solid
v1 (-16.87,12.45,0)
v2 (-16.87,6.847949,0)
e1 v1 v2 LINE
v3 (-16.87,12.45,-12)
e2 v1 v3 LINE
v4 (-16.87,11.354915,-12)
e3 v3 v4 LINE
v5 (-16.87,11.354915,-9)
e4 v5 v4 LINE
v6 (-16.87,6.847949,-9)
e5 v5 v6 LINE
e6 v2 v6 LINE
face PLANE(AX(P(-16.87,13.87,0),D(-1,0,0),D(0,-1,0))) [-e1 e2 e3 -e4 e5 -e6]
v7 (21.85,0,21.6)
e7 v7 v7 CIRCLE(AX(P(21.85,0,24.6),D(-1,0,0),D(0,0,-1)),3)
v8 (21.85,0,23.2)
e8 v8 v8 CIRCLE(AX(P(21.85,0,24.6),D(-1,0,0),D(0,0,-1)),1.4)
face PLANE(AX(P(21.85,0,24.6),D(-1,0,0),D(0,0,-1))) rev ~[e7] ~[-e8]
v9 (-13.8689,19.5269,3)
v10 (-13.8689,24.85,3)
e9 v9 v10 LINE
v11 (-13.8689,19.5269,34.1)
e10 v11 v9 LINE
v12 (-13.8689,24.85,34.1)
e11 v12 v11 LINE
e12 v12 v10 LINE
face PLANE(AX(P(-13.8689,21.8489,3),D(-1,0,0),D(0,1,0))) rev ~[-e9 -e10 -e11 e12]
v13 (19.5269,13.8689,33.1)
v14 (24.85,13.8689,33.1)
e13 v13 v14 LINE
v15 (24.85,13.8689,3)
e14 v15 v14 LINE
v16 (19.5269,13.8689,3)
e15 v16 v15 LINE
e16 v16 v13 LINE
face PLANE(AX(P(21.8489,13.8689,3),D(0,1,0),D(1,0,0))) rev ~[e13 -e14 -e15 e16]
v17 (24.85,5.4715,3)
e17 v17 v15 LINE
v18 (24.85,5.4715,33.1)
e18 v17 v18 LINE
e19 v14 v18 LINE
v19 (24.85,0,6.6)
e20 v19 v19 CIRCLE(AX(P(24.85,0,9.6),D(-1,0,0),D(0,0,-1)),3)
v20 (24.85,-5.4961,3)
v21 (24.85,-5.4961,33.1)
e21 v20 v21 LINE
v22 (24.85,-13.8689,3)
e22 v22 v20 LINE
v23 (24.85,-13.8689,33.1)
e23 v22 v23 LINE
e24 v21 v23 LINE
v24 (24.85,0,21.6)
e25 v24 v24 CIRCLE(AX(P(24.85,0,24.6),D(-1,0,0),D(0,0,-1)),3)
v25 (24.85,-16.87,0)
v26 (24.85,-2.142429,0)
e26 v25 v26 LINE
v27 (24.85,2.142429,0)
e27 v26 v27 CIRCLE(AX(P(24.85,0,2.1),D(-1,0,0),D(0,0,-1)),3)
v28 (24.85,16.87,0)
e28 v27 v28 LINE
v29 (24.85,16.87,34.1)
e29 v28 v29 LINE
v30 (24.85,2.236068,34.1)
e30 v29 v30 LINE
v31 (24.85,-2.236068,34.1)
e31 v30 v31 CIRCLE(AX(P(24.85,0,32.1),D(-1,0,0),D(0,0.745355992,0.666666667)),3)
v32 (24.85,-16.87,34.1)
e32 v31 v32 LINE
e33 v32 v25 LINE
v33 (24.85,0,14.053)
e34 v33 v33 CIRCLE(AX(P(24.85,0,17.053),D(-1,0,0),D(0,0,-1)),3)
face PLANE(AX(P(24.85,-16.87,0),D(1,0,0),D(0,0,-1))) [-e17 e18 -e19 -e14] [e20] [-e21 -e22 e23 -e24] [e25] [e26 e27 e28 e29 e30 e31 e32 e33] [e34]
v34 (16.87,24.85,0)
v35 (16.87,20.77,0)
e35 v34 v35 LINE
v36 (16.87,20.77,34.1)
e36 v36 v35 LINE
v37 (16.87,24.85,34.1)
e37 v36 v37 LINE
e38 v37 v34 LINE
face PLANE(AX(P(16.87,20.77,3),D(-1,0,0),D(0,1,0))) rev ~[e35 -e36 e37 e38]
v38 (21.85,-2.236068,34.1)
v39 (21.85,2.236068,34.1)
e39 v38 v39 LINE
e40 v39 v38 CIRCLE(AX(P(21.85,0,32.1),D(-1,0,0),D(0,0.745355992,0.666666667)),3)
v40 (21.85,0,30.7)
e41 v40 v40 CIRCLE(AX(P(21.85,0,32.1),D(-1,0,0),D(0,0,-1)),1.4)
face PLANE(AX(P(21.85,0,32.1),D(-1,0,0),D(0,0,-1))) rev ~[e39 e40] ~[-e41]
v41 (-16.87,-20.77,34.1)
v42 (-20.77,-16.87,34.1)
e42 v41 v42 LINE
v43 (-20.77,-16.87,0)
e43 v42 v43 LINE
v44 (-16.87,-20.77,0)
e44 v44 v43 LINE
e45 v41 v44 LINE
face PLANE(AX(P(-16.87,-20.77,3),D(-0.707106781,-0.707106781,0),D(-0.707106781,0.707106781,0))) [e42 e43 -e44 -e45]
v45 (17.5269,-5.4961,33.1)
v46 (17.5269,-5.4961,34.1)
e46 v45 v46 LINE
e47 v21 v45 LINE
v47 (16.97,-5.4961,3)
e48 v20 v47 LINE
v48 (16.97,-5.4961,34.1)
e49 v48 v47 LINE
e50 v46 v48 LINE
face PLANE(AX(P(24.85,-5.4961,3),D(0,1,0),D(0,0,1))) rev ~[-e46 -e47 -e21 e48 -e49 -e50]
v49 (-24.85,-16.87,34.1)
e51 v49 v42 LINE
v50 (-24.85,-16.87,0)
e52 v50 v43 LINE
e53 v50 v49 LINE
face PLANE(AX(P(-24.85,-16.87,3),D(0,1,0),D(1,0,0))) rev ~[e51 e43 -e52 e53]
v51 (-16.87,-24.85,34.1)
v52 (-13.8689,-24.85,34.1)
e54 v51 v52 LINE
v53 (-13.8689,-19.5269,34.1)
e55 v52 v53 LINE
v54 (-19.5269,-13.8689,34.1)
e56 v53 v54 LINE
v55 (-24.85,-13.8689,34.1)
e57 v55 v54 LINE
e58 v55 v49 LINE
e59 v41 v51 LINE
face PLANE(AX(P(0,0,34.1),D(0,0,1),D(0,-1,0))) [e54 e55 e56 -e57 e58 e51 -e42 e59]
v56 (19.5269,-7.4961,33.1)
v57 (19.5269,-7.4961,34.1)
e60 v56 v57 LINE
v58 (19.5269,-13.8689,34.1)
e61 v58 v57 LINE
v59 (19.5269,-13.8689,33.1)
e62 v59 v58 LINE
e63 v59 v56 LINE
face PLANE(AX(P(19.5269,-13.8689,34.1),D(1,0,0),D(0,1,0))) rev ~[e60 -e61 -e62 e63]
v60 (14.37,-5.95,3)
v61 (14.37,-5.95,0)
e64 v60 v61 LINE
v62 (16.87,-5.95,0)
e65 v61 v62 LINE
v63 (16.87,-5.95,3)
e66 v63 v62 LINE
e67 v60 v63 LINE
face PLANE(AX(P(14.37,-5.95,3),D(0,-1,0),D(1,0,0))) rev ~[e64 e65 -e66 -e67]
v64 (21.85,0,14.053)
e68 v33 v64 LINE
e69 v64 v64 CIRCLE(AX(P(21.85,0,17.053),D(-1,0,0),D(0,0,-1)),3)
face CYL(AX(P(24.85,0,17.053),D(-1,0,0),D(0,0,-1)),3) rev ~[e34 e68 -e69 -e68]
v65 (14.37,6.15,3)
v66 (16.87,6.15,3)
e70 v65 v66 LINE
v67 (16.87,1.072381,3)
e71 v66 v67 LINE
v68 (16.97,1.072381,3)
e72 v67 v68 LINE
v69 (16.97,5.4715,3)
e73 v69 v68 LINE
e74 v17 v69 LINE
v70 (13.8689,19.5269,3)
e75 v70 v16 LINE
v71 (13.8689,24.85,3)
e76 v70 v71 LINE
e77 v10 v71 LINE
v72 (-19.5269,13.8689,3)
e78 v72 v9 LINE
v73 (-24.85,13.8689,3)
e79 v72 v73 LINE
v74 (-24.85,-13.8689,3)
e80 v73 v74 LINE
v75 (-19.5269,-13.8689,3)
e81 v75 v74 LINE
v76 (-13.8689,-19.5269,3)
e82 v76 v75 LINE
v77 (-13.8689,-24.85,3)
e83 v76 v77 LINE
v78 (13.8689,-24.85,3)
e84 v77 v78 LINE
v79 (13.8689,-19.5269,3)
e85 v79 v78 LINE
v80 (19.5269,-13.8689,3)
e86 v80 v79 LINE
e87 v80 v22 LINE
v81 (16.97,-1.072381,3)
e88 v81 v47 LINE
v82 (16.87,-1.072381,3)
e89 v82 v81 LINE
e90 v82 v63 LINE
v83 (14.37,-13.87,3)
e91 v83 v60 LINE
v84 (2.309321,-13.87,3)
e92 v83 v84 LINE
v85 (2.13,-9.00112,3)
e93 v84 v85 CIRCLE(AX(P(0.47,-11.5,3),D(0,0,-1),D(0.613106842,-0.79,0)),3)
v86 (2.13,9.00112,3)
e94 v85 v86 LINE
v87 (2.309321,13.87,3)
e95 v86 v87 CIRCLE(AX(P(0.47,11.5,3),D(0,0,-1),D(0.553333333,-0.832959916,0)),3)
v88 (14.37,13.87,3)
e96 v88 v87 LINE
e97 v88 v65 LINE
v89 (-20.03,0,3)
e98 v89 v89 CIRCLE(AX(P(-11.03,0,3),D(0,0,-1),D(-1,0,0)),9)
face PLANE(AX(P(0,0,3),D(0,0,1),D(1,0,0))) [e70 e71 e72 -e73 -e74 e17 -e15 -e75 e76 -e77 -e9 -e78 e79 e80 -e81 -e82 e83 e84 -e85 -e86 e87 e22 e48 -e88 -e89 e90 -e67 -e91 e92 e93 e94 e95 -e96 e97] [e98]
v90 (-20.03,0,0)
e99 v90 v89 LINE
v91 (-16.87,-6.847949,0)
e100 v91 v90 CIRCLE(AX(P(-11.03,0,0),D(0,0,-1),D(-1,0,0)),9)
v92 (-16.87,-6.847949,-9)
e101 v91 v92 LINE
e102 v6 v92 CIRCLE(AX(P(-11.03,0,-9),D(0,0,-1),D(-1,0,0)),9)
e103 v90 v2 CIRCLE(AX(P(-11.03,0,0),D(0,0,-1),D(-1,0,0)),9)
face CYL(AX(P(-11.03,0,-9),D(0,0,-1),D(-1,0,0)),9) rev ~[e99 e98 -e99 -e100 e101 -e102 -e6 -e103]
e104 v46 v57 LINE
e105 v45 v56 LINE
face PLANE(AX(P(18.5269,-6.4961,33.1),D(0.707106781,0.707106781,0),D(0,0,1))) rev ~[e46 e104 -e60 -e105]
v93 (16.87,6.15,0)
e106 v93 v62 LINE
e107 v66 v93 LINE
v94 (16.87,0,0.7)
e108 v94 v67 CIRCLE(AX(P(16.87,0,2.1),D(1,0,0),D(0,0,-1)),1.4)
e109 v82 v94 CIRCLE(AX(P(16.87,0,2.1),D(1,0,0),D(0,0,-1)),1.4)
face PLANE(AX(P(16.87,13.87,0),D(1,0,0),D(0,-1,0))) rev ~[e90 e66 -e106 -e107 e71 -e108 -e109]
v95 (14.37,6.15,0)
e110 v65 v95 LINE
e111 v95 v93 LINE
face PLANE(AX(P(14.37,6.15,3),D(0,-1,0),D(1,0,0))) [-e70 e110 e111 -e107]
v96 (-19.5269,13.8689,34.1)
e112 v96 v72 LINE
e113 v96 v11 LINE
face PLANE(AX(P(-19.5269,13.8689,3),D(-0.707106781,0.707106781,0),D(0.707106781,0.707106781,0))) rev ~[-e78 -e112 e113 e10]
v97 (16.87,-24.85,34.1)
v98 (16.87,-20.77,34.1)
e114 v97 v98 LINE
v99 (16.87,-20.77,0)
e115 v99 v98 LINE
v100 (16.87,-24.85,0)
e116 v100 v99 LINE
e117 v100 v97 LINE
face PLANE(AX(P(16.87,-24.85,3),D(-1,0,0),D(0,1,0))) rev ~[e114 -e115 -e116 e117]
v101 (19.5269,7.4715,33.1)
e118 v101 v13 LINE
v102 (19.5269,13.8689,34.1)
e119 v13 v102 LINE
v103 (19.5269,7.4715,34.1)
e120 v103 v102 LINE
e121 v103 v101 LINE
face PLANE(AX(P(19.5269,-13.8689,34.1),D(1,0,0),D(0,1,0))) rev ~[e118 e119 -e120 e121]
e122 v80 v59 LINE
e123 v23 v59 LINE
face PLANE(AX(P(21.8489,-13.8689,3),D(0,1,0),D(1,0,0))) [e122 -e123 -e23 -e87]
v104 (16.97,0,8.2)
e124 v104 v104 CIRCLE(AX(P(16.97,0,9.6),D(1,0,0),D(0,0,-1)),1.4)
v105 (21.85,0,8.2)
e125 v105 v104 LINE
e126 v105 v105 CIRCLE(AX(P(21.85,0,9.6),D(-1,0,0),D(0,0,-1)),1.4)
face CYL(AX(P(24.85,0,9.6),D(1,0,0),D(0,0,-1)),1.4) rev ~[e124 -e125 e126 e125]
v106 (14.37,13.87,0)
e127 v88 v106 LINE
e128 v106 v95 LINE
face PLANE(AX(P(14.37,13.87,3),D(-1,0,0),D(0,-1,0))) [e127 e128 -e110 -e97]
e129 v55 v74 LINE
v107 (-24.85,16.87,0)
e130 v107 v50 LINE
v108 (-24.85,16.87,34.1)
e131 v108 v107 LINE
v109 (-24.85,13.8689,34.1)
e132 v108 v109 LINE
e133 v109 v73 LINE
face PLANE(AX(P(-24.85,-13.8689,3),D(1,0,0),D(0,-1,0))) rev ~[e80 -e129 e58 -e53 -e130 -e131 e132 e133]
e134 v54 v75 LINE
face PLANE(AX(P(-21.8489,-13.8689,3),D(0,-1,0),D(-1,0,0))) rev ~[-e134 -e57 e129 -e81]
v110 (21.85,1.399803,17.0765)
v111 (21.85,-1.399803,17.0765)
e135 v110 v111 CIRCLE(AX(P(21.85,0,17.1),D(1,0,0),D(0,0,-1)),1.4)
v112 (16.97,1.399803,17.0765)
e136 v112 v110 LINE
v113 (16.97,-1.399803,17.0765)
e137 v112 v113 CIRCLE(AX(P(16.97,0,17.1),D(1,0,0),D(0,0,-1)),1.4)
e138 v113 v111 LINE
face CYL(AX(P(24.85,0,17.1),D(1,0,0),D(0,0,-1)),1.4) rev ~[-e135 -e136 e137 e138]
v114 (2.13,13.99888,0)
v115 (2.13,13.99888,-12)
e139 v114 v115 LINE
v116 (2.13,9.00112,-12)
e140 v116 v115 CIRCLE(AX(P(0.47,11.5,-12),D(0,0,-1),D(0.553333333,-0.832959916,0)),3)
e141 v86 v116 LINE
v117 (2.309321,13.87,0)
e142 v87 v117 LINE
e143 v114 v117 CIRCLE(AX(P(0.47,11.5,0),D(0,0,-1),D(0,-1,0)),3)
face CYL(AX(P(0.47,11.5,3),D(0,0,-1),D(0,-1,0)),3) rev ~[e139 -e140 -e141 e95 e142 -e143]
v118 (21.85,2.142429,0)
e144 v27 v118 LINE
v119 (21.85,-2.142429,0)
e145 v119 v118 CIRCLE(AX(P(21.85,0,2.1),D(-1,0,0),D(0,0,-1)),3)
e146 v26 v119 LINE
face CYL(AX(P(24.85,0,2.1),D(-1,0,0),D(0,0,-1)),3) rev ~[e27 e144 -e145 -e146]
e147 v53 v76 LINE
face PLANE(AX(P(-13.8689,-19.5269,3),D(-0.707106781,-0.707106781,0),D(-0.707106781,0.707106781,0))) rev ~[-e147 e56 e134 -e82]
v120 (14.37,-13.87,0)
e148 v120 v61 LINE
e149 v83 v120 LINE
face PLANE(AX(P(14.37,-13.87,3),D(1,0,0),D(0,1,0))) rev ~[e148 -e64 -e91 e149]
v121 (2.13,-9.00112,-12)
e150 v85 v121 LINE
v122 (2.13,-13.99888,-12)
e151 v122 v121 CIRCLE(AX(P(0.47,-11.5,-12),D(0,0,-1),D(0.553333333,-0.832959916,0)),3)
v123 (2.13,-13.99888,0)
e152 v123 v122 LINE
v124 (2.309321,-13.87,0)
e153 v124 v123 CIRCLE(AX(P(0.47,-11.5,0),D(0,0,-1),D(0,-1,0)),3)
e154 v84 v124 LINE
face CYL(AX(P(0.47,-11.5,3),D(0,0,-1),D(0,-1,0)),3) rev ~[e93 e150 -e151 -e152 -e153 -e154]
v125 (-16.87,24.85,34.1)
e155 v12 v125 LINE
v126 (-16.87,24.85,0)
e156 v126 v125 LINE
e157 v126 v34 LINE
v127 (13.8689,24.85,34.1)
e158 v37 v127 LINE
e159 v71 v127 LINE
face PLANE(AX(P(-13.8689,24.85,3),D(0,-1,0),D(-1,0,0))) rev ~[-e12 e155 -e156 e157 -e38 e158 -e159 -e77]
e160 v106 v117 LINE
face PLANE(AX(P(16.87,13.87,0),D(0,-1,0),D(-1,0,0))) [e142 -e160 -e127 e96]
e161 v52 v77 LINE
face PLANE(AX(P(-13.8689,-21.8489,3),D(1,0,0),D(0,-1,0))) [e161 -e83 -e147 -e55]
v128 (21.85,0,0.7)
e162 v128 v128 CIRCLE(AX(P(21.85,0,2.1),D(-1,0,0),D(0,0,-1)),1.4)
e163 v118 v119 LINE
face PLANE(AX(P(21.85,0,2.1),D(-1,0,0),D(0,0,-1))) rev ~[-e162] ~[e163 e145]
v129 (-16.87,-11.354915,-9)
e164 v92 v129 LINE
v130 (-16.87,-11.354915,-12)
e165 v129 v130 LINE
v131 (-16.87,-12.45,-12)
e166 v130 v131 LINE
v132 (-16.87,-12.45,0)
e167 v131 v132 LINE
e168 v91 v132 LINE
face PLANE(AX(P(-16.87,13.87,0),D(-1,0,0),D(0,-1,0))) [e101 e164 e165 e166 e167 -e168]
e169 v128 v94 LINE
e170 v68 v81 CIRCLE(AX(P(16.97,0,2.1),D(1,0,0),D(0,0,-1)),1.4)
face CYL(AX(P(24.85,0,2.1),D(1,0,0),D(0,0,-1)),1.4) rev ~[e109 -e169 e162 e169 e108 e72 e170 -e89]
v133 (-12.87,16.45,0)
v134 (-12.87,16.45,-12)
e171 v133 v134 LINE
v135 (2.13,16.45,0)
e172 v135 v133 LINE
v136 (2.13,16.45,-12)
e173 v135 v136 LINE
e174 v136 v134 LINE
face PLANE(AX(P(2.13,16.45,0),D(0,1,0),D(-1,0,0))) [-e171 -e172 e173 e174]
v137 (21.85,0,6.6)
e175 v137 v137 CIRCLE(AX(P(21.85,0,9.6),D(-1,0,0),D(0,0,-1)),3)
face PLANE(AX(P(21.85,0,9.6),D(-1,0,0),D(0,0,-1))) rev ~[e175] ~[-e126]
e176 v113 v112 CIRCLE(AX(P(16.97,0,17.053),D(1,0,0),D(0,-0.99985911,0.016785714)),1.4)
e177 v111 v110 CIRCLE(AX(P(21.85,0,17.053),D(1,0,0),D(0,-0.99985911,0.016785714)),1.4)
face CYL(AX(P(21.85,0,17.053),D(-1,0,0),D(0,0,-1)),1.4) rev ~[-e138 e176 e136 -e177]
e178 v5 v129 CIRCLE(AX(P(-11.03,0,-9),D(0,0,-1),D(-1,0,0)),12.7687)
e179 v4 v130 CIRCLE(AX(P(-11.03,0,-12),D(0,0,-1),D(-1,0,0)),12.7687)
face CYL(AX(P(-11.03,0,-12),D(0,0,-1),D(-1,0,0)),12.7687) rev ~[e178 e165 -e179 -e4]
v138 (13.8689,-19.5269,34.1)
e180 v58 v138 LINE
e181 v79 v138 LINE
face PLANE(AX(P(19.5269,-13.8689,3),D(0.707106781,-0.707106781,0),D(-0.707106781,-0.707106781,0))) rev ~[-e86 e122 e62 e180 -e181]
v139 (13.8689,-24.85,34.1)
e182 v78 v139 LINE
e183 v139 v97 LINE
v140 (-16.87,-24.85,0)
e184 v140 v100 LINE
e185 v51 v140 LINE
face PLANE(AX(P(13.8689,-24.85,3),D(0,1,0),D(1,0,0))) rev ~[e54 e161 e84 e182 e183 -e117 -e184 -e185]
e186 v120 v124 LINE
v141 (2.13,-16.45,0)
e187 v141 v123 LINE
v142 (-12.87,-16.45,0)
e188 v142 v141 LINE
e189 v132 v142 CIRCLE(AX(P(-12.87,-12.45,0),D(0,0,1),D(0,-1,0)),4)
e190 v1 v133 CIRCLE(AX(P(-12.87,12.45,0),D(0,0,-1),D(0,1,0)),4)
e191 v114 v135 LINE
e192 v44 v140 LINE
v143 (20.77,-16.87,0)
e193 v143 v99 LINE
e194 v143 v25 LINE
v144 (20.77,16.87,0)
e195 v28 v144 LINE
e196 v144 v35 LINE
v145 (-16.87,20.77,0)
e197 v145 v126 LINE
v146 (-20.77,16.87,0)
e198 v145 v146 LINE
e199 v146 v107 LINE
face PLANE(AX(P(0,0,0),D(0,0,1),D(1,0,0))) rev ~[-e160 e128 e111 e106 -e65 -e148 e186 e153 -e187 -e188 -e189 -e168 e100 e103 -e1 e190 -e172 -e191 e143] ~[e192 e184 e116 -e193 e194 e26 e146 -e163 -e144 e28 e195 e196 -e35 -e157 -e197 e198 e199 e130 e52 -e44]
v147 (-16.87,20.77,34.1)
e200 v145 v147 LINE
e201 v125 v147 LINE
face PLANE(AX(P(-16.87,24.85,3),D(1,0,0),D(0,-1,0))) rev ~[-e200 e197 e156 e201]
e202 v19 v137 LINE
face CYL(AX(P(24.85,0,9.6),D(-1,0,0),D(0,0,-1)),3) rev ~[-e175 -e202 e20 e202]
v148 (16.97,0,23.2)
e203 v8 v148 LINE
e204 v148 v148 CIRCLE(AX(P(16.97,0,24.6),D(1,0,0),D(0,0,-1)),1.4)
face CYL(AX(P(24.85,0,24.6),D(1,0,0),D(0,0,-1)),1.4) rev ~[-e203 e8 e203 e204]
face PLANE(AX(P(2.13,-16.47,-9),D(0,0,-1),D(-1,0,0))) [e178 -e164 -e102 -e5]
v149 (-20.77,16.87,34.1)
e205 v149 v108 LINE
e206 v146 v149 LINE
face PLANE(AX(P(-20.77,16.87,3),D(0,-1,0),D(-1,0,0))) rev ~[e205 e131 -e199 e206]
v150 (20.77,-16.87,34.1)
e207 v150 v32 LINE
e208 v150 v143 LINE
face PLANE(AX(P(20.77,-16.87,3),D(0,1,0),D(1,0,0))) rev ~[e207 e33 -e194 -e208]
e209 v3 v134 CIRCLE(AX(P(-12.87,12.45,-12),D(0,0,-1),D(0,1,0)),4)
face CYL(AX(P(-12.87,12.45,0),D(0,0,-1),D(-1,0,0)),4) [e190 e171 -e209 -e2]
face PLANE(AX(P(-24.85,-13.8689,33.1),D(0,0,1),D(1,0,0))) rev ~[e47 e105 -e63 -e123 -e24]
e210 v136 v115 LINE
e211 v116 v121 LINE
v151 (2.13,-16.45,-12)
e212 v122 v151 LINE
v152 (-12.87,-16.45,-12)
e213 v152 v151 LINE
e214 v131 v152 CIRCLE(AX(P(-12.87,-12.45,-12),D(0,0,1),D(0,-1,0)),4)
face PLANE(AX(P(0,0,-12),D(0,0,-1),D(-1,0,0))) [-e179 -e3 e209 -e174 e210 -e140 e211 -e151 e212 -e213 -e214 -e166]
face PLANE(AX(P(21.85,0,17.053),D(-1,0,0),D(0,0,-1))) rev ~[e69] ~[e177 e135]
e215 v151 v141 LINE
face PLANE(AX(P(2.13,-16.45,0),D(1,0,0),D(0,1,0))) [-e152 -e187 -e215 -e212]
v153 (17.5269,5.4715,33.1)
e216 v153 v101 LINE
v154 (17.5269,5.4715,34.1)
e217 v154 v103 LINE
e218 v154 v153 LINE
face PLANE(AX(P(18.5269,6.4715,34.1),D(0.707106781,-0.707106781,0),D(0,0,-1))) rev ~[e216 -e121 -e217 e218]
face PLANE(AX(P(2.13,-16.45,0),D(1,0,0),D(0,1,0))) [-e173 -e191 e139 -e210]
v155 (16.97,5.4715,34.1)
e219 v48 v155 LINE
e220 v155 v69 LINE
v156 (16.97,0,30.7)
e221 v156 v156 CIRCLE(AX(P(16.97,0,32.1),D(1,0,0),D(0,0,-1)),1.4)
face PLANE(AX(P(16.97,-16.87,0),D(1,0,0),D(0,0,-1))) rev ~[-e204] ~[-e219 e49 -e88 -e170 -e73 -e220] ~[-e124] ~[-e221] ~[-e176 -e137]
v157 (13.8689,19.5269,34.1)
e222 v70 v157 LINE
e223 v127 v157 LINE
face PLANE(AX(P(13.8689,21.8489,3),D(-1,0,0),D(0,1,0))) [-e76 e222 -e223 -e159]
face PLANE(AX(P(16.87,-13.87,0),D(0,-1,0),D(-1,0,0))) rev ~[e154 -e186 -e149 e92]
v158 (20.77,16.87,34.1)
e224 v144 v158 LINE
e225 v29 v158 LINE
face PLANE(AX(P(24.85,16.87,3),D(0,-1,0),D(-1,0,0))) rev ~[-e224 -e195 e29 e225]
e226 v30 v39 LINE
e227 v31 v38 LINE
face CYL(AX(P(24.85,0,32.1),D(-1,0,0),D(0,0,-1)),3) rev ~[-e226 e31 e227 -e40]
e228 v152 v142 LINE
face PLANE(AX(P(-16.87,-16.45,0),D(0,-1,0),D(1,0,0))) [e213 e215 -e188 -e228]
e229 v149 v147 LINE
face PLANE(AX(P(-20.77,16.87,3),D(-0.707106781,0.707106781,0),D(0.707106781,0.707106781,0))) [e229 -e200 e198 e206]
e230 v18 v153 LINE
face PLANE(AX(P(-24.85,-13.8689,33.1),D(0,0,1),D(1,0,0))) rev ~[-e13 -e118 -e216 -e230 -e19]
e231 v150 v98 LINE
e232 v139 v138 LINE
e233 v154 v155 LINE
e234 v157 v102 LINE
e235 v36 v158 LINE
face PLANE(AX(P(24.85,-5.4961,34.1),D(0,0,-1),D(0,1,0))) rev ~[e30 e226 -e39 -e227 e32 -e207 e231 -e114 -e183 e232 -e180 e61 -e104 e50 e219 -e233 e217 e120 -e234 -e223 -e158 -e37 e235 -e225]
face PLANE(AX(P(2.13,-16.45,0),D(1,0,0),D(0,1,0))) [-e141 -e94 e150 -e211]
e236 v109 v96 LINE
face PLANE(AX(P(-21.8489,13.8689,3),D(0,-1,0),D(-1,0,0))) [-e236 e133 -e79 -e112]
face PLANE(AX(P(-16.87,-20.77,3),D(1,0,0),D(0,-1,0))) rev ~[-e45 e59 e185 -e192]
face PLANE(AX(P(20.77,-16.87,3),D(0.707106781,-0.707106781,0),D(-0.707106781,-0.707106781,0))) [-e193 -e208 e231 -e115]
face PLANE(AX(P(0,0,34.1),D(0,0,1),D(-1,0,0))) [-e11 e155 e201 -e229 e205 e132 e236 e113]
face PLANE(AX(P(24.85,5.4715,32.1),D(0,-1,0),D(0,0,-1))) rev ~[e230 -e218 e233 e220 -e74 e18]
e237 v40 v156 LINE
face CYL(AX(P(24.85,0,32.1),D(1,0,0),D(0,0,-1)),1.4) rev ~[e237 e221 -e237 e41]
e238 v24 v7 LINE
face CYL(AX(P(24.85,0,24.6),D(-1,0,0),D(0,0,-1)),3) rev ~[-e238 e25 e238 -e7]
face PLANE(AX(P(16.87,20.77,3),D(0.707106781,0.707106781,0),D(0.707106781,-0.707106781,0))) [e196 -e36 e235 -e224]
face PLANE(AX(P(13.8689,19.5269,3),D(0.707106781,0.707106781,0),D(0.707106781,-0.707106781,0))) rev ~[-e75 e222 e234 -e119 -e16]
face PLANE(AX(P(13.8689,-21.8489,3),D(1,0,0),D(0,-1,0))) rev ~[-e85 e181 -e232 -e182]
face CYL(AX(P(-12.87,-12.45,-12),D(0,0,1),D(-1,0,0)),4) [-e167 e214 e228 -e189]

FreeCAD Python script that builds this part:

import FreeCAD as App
import Part
import Sketcher
Q = App.Units.Quantity


def edges_at(feature, points):
    """Names of the edges that pass closest to the given points."""
    edges = feature.Shape.Edges
    near = lambda p: min(range(len(edges)), key=lambda i: edges[i].distToShape(Part.Vertex(*p))[0])
    return sorted({f"Edge{near(p) + 1}" for p in points})

doc = App.newDocument("Part")
body = doc.addObject("PartDesign::Body", "Body")

sketch1 = body.newObject("Sketcher::SketchObject", "Sketch")
sketch1.AttachmentSupport = (doc.getObject("XY_Plane"), [""])
sketch1.MapMode = "FlatFace"
sketch1.addGeometry(Part.LineSegment(App.Vector(25, -17, 0), App.Vector(25, 17, 0)), False)
sketch1.addGeometry(Part.LineSegment(App.Vector(25, 17, 0), App.Vector(17, 17, 0)), False)
sketch1.addGeometry(Part.LineSegment(App.Vector(17, 17, 0), App.Vector(17, 25, 0)), False)
sketch1.addGeometry(Part.LineSegment(App.Vector(17, 25, 0), App.Vector(-17, 25, 0)), False)
sketch1.addGeometry(Part.LineSegment(App.Vector(-17, 25, 0), App.Vector(-17, 17, 0)), False)
sketch1.addGeometry(Part.LineSegment(App.Vector(-17, 17, 0), App.Vector(-25, 17, 0)), False)
sketch1.addGeometry(Part.LineSegment(App.Vector(-25, 17, 0), App.Vector(-25, -17, 0)), False)
sketch1.addGeometry(Part.LineSegment(App.Vector(-25, -17, 0), App.Vector(-17, -17, 0)), False)
sketch1.addGeometry(Part.LineSegment(App.Vector(-17, -17, 0), App.Vector(-17, -25, 0)), False)
sketch1.addGeometry(Part.LineSegment(App.Vector(-17, -25, 0), App.Vector(17, -25, 0)), False)
sketch1.addGeometry(Part.LineSegment(App.Vector(17, -25, 0), App.Vector(17, -17, 0)), False)
sketch1.addGeometry(Part.LineSegment(App.Vector(17, -17, 0), App.Vector(25, -17, 0)), False)
sketch1.addGeometry(Part.LineSegment(App.Vector(17, 14, 0), App.Vector(17, -14, 0)), False)
sketch1.addGeometry(Part.LineSegment(App.Vector(17, -14, 0), App.Vector(-17, -14, 0)), False)
sketch1.addGeometry(Part.LineSegment(App.Vector(-17, -14, 0), App.Vector(-17, 14, 0)), False)
sketch1.addGeometry(Part.LineSegment(App.Vector(-17, 14, 0), App.Vector(17, 14, 0)), False)
sketch1.addConstraint(Sketcher.Constraint("Coincident", 0, 2, 1, 1))
sketch1.addConstraint(Sketcher.Constraint("Coincident", 1, 2, 2, 1))
sketch1.addConstraint(Sketcher.Constraint("Coincident", 2, 2, 3, 1))
sketch1.addConstraint(Sketcher.Constraint("Coincident", 3, 2, 4, 1))
sketch1.addConstraint(Sketcher.Constraint("Coincident", 4, 2, 5, 1))
sketch1.addConstraint(Sketcher.Constraint("Coincident", 5, 2, 6, 1))
sketch1.addConstraint(Sketcher.Constraint("Coincident", 6, 2, 7, 1))
sketch1.addConstraint(Sketcher.Constraint("Coincident", 7, 2, 8, 1))
sketch1.addConstraint(Sketcher.Constraint("Coincident", 8, 2, 9, 1))
sketch1.addConstraint(Sketcher.Constraint("Coincident", 9, 2, 10, 1))
sketch1.addConstraint(Sketcher.Constraint("Coincident", 10, 2, 11, 1))
sketch1.addConstraint(Sketcher.Constraint("Coincident", 11, 2, 0, 1))
sketch1.addConstraint(Sketcher.Constraint("Coincident", 12, 2, 13, 1))
sketch1.addConstraint(Sketcher.Constraint("Coincident", 13, 2, 14, 1))
sketch1.addConstraint(Sketcher.Constraint("Coincident", 14, 2, 15, 1))
sketch1.addConstraint(Sketcher.Constraint("Coincident", 15, 2, 12, 1))
sketch1.addConstraint(Sketcher.Constraint("Vertical", 0))
sketch1.addConstraint(Sketcher.Constraint("Horizontal", 1))
sketch1.addConstraint(Sketcher.Constraint("Vertical", 2))
sketch1.addConstraint(Sketcher.Constraint("Horizontal", 3))
sketch1.addConstraint(Sketcher.Constraint("Vertical", 4))
sketch1.addConstraint(Sketcher.Constraint("Horizontal", 5))
sketch1.addConstraint(Sketcher.Constraint("Vertical", 6))
sketch1.addConstraint(Sketcher.Constraint("Horizontal", 7))
sketch1.addConstraint(Sketcher.Constraint("Vertical", 8))
sketch1.addConstraint(Sketcher.Constraint("Horizontal", 9))
sketch1.addConstraint(Sketcher.Constraint("Vertical", 10))
sketch1.addConstraint(Sketcher.Constraint("Horizontal", 11))
sketch1.addConstraint(Sketcher.Constraint("Vertical", 12))
sketch1.addConstraint(Sketcher.Constraint("Horizontal", 13))
sketch1.addConstraint(Sketcher.Constraint("Vertical", 14))
sketch1.addConstraint(Sketcher.Constraint("Horizontal", 15))
sketch1.addConstraint(Sketcher.Constraint("Symmetric", 0, 2, 6, 2, -1, 1))
sketch1.addConstraint(Sketcher.Constraint("Symmetric", 2, 2, 8, 2, -1, 1))
sketch1.addConstraint(Sketcher.Constraint("Symmetric", 4, 2, 10, 2, -1, 1))
sketch1.addConstraint(Sketcher.Constraint("Symmetric", 12, 2, 14, 2, -1, 1))
sketch1.addConstraint(Sketcher.Constraint("Symmetric", 1, 2, 4, 2, -2))
sketch1.addConstraint(Sketcher.Constraint("Vertical", 10, 2, 12, 2))
sketch1.addConstraint(Sketcher.Constraint("Equal", 15, 0))
sketch1.addConstraint(Sketcher.Constraint("Equal", 11, 2))
sketch1.addConstraint(Sketcher.Constraint("DistanceY", 10, 2, 12, 2, Q("3 mm")))
sketch1.addConstraint(Sketcher.Constraint("DistanceX", 1, 2, 1, 1, Q("7.98 mm")))
sketch1.addConstraint(Sketcher.Constraint("DistanceX", 3, 2, 3, 1, Q("33.74 mm")))
pad1 = body.newObject("PartDesign::Pad", "Pad")
pad1.Profile = sketch1
pad1.Length = 3
doc.recompute()

chamfer = body.newObject("PartDesign::Chamfer", "Chamfer")
chamfer.Base = (pad1, edges_at(pad1, [
    (16.87, -16.87, 1.5),
    (-16.87, -16.87, 1.5),
    (-16.87, 16.87, 1.5),
    (16.87, 16.87, 1.5),
]))
chamfer.Size = 3.9

sketch2 = body.newObject("Sketcher::SketchObject", "Sketch001")
sketch2.AttachmentSupport = (doc.getObject("XY_Plane"), [""])
sketch2.MapMode = "FlatFace"
sketch2.AttachmentOffset = App.Placement(App.Vector(0, 0, 3), App.Rotation())
sketch2.addGeometry(Part.LineSegment(App.Vector(13.9, -19.5, 0), App.Vector(13.9, -24.9, 0)), False)
sketch2.addGeometry(Part.LineSegment(App.Vector(13.9, -24.9, 0), App.Vector(16.9, -24.9, 0)), False)
sketch2.addGeometry(Part.LineSegment(App.Vector(16.9, -24.9, 0), App.Vector(16.9, -20.8, 0)), False)
sketch2.addGeometry(Part.LineSegment(App.Vector(16.9, -20.8, 0), App.Vector(20.8, -16.9, 0)), False)
sketch2.addGeometry(Part.LineSegment(App.Vector(20.8, -16.9, 0), App.Vector(24.9, -16.9, 0)), False)
sketch2.addGeometry(Part.LineSegment(App.Vector(24.9, -16.9, 0), App.Vector(24.9, -13.9, 0)), False)
sketch2.addGeometry(Part.LineSegment(App.Vector(24.9, -13.9, 0), App.Vector(19.5, -13.9, 0)), False)
sketch2.addGeometry(Part.LineSegment(App.Vector(19.5, -13.9, 0), App.Vector(13.9, -19.5, 0)), False)
sketch2.addConstraint(Sketcher.Constraint("Coincident", 0, 2, 1, 1))
sketch2.addConstraint(Sketcher.Constraint("Coincident", 1, 2, 2, 1))
sketch2.addConstraint(Sketcher.Constraint("Coincident", 2, 2, 3, 1))
sketch2.addConstraint(Sketcher.Constraint("Coincident", 3, 2, 4, 1))
sketch2.addConstraint(Sketcher.Constraint("Coincident", 4, 2, 5, 1))
sketch2.addConstraint(Sketcher.Constraint("Coincident", 5, 2, 6, 1))
sketch2.addConstraint(Sketcher.Constraint("Coincident", 6, 2, 7, 1))
sketch2.addConstraint(Sketcher.Constraint("Coincident", 7, 2, 0, 1))
sketch2.addConstraint(Sketcher.Constraint("Vertical", 0))
sketch2.addConstraint(Sketcher.Constraint("Horizontal", 1))
sketch2.addConstraint(Sketcher.Constraint("Vertical", 2))
sketch2.addConstraint(Sketcher.Constraint("Horizontal", 4))
sketch2.addConstraint(Sketcher.Constraint("Vertical", 5))
sketch2.addConstraint(Sketcher.Constraint("Horizontal", 6))
sketch2.addConstraint(Sketcher.Constraint("Parallel", 3, 7))
sketch2.addConstraint(Sketcher.Constraint("Equal", 6, 0))
sketch2.addConstraint(Sketcher.Constraint("Equal", 4, 2))
sketch2.addConstraint(Sketcher.Constraint("Equal", 1, 5))
sketch2.addConstraint(Sketcher.Constraint("DistanceX", 1, 1, 1, 2, Q("3.001 mm")))
sketch2.addConstraint(Sketcher.Constraint("DistanceX", 4, 1, 4, 2, Q("4.08 mm")))
sketch2.addConstraint(Sketcher.Constraint("DistanceX", 2, 2, 3, 2, Q("3.9 mm")))
sketch2.addConstraint(Sketcher.Constraint("DistanceX", 6, 2, 6, 1, Q("5.323 mm")))
sketch2.addConstraint(Sketcher.Constraint("DistanceY", 0, 2, -1, 1, Q("24.85 mm")))
sketch2.addConstraint(Sketcher.Constraint("DistanceX", -1, 1, 1, 2, Q("16.87 mm")))
pad2 = body.newObject("PartDesign::Pad", "Pad001")
pad2.Profile = sketch2
pad2.Length = 31.1
doc.recompute()

polarpattern = body.newObject("PartDesign::PolarPattern", "PolarPattern")
polarpattern.Originals = [pad2]
polarpattern.Axis = (doc.getObject("Z_Axis"), [""])
polarpattern.Angle = 360
polarpattern.Occurrences = 4
body.Tip = polarpattern

sketch3 = body.newObject("Sketcher::SketchObject", "Sketch002")
sketch3.AttachmentSupport = (doc.getObject("XY_Plane"), [""])
sketch3.MapMode = "FlatFace"
sketch3.AttachmentOffset = App.Placement(App.Vector(0, 0, 34.1), App.Rotation())
sketch3.addGeometry(Part.LineSegment(App.Vector(-13.9, -24.9, 0), App.Vector(-13.9, -19.5, 0)), False)
sketch3.addGeometry(Part.LineSegment(App.Vector(-13.9, -19.5, 0), App.Vector(-19.5, -13.9, 0)), False)
sketch3.addGeometry(Part.LineSegment(App.Vector(-19.5, -13.9, 0), App.Vector(-24.9, -13.9, 0)), False)
sketch3.addGeometry(Part.LineSegment(App.Vector(-24.9, -13.9, 0), App.Vector(-24.9, -16.9, 0)), False)
sketch3.addGeometry(Part.LineSegment(App.Vector(-24.9, -16.9, 0), App.Vector(-20.8, -16.9, 0)), False)
sketch3.addGeometry(Part.LineSegment(App.Vector(-20.8, -16.9, 0), App.Vector(-16.9, -20.8, 0)), False)
sketch3.addGeometry(Part.LineSegment(App.Vector(-16.9, -20.8, 0), App.Vector(-16.9, -24.9, 0)), False)
sketch3.addGeometry(Part.LineSegment(App.Vector(-16.9, -24.9, 0), App.Vector(-13.9, -24.9, 0)), False)
sketch3.addGeometry(Part.LineSegment(App.Vector(-24.9, 13.9, 0), App.Vector(-19.5, 13.9, 0)), False)
sketch3.addGeometry(Part.LineSegment(App.Vector(-19.5, 13.9, 0), App.Vector(-13.9, 19.5, 0)), False)
sketch3.addGeometry(Part.LineSegment(App.Vector(-13.9, 19.5, 0), App.Vector(-13.9, 24.9, 0)), False)
sketch3.addGeometry(Part.LineSegment(App.Vector(-13.9, 24.9, 0), App.Vector(-16.9, 24.9, 0)), False)
sketch3.addGeometry(Part.LineSegment(App.Vector(-16.9, 24.9, 0), App.Vector(-16.9, 20.8, 0)), False)
sketch3.addGeometry(Part.LineSegment(App.Vector(-16.9, 20.8, 0), App.Vector(-20.8, 16.9, 0)), False)
sketch3.addGeometry(Part.LineSegment(App.Vector(-20.8, 16.9, 0), App.Vector(-24.9, 16.9, 0)), False)
sketch3.addGeometry(Part.LineSegment(App.Vector(-24.9, 16.9, 0), App.Vector(-24.9, 13.9, 0)), False)
sketch3.addGeometry(Part.LineSegment(App.Vector(19.5, -13.9, 0), App.Vector(24.9, -13.9, 0)), False)
sketch3.addGeometry(Part.LineSegment(App.Vector(24.9, -13.9, 0), App.Vector(24.9, 13.9, 0)), False)
sketch3.addGeometry(Part.LineSegment(App.Vector(24.9, 13.9, 0), App.Vector(19.5, 13.9, 0)), False)
sketch3.addGeometry(Part.LineSegment(App.Vector(19.5, 13.9, 0), App.Vector(19.5, -13.9, 0)), False)
sketch3.addConstraint(Sketcher.Constraint("Coincident", 0, 2, 1, 1))
sketch3.addConstraint(Sketcher.Constraint("Coincident", 1, 2, 2, 1))
sketch3.addConstraint(Sketcher.Constraint("Coincident", 2, 2, 3, 1))
sketch3.addConstraint(Sketcher.Constraint("Coincident", 3, 2, 4, 1))
sketch3.addConstraint(Sketcher.Constraint("Coincident", 4, 2, 5, 1))
sketch3.addConstraint(Sketcher.Constraint("Coincident", 5, 2, 6, 1))
sketch3.addConstraint(Sketcher.Constraint("Coincident", 6, 2, 7, 1))
sketch3.addConstraint(Sketcher.Constraint("Coincident", 7, 2, 0, 1))
sketch3.addConstraint(Sketcher.Constraint("Coincident", 8, 2, 9, 1))
sketch3.addConstraint(Sketcher.Constraint("Coincident", 9, 2, 10, 1))
sketch3.addConstraint(Sketcher.Constraint("Coincident", 10, 2, 11, 1))
sketch3.addConstraint(Sketcher.Constraint("Coincident", 11, 2, 12, 1))
sketch3.addConstraint(Sketcher.Constraint("Coincident", 12, 2, 13, 1))
sketch3.addConstraint(Sketcher.Constraint("Coincident", 13, 2, 14, 1))
sketch3.addConstraint(Sketcher.Constraint("Coincident", 14, 2, 15, 1))
sketch3.addConstraint(Sketcher.Constraint("Coincident", 15, 2, 8, 1))
sketch3.addConstraint(Sketcher.Constraint("Coincident", 16, 2, 17, 1))
sketch3.addConstraint(Sketcher.Constraint("Coincident", 17, 2, 18, 1))
sketch3.addConstraint(Sketcher.Constraint("Coincident", 18, 2, 19, 1))
sketch3.addConstraint(Sketcher.Constraint("Coincident", 19, 2, 16, 1))
sketch3.addConstraint(Sketcher.Constraint("Vertical", 0))
sketch3.addConstraint(Sketcher.Constraint("Horizontal", 2))
sketch3.addConstraint(Sketcher.Constraint("Vertical", 3))
sketch3.addConstraint(Sketcher.Constraint("Horizontal", 4))
sketch3.addConstraint(Sketcher.Constraint("Vertical", 6))
sketch3.addConstraint(Sketcher.Constraint("Horizontal", 7))
sketch3.addConstraint(Sketcher.Constraint("Horizontal", 8))
sketch3.addConstraint(Sketcher.Constraint("Vertical", 10))
sketch3.addConstraint(Sketcher.Constraint("Horizontal", 11))
sketch3.addConstraint(Sketcher.Constraint("Vertical", 12))
sketch3.addConstraint(Sketcher.Constraint("Horizontal", 14))
sketch3.addConstraint(Sketcher.Constraint("Vertical", 15))
sketch3.addConstraint(Sketcher.Constraint("Horizontal", 16))
sketch3.addConstraint(Sketcher.Constraint("Vertical", 17))
sketch3.addConstraint(Sketcher.Constraint("Horizontal", 18))
sketch3.addConstraint(Sketcher.Constraint("Vertical", 19))
sketch3.addConstraint(Sketcher.Constraint("Symmetric", 15, 2, 16, 2, -1, 1))
sketch3.addConstraint(Sketcher.Constraint("Symmetric", 2, 2, 17, 2, -1, 1))
sketch3.addConstraint(Sketcher.Constraint("Symmetric", 8, 2, 18, 2, -2))
sketch3.addConstraint(Sketcher.Constraint("Symmetric", 0, 2, 9, 2, -1))
sketch3.addConstraint(Sketcher.Constraint("Symmetric", 6, 2, 11, 2, -1))
sketch3.addConstraint(Sketcher.Constraint("Symmetric", 4, 2, 13, 2, -1))
sketch3.addConstraint(Sketcher.Constraint("Parallel", 1, 5))
sketch3.addConstraint(Sketcher.Constraint("Perpendicular", 5, 9))
sketch3.addConstraint(Sketcher.Constraint("Parallel", 9, 13))
sketch3.addConstraint(Sketcher.Constraint("Vertical", 1, 2, 8, 2))
sketch3.addConstraint(Sketcher.Constraint("Equal", 18, 0))
sketch3.addConstraint(Sketcher.Constraint("Equal", 11, 3))
sketch3.addConstraint(Sketcher.Constraint("DistanceX", 4, 1, 4, 2, Q("4.08 mm")))
sketch3.addConstraint(Sketcher.Constraint("DistanceX", 4, 2, 5, 2, Q("3.9 mm")))
sketch3.addConstraint(Sketcher.Constraint("DistanceX", 2, 2, 2, 1, Q("5.323 mm")))
sketch3.addConstraint(Sketcher.Constraint("DistanceX", 7, 1, 7, 2, Q("3.001 mm")))
sketch3.addConstraint(Sketcher.Constraint("DistanceX", 2, 2, -1, 1, Q("24.85 mm")))
sketch3.addConstraint(Sketcher.Constraint("DistanceY", 3, 2, -1, 1, Q("16.87 mm")))
pad3 = body.newObject("PartDesign::Pad", "Pad002")
pad3.Profile = sketch3
pad3.Length = 1
pad3.Reversed = True

sketch4 = body.newObject("Sketcher::SketchObject", "Sketch003")
sketch4.AttachmentSupport = (doc.getObject("YZ_Plane"), [""])
sketch4.MapMode = "FlatFace"
sketch4.AttachmentOffset = App.Placement(App.Vector(0, 0, 24.85), App.Rotation())
sketch4.addGeometry(Part.LineSegment(App.Vector(-5, 34, 0), App.Vector(-5, 3, 0)), False)
sketch4.addGeometry(Part.LineSegment(App.Vector(-5, 3, 0), App.Vector(5, 3, 0)), False)
sketch4.addGeometry(Part.LineSegment(App.Vector(5, 3, 0), App.Vector(5, 34, 0)), False)
sketch4.addGeometry(Part.LineSegment(App.Vector(5, 34, 0), App.Vector(-5, 34, 0)), False)
sketch4.addConstraint(Sketcher.Constraint("Coincident", 0, 2, 1, 1))
sketch4.addConstraint(Sketcher.Constraint("Coincident", 1, 2, 2, 1))
sketch4.addConstraint(Sketcher.Constraint("Coincident", 2, 2, 3, 1))
sketch4.addConstraint(Sketcher.Constraint("Coincident", 3, 2, 0, 1))
sketch4.addConstraint(Sketcher.Constraint("Vertical", 0))
sketch4.addConstraint(Sketcher.Constraint("Horizontal", 1))
sketch4.addConstraint(Sketcher.Constraint("Vertical", 2))
sketch4.addConstraint(Sketcher.Constraint("Horizontal", 3))
sketch4.addConstraint(Sketcher.Constraint("DistanceY", 0, 2, 0, 1, Q("31.1 mm")))
sketch4.addConstraint(Sketcher.Constraint("DistanceY", -1, 1, 0, 2, Q("3 mm")))
sketch4.addConstraint(Sketcher.Constraint("DistanceX", 1, 1, 1, 2, Q("10.9676 mm")))
sketch4.addConstraint(Sketcher.Constraint("DistanceX", 0, 2, -1, 1, Q("5.496 mm")))
pad4 = body.newObject("PartDesign::Pad", "Pad003")
pad4.Profile = sketch4
pad4.Length = 7.88
pad4.Reversed = True

sketch5 = body.newObject("Sketcher::SketchObject", "Sketch004")
sketch5.AttachmentSupport = (doc.getObject("YZ_Plane"), [""])
sketch5.MapMode = "FlatFace"
sketch5.AttachmentOffset = App.Placement(App.Vector(0, 0, 24.85), App.Rotation())
sketch5.addGeometry(Part.Circle(App.Vector(0, 32.1, 0), App.Vector(0, 0, 1), 1.4), False)
sketch5.addGeometry(Part.Circle(App.Vector(0, 2.1, 0), App.Vector(0, 0, 1), 1.4), False)
sketch5.addConstraint(Sketcher.Constraint("Equal", 0, 1))
sketch5.addConstraint(Sketcher.Constraint("PointOnObject", 0, 3, -2))
sketch5.addConstraint(Sketcher.Constraint("PointOnObject", 1, 3, -2))
sketch5.addConstraint(Sketcher.Constraint("Diameter", 0, Q("2.8 mm")))
sketch5.addConstraint(Sketcher.Constraint("DistanceY", 1, 3, 0, 3, Q("30 mm")))
sketch5.addConstraint(Sketcher.Constraint("DistanceY", -1, 1, 0, 3, Q("32.1 mm")))
pocket1 = body.newObject("PartDesign::Pocket", "Pocket")
pocket1.Profile = sketch5
pocket1.Length = 10
doc.recompute()

linearpattern = body.newObject("PartDesign::LinearPattern", "LinearPattern")
linearpattern.Originals = [pocket1]
linearpattern.Direction = (doc.getObject("Z_Axis"), [""])
linearpattern.Mode = "offset"
linearpattern.Offset = 7.5
linearpattern.Occurrences = 4
body.Tip = linearpattern

sketch6 = body.newObject("Sketcher::SketchObject", "Sketch005")
sketch6.AttachmentSupport = (doc.getObject("XY_Plane"), [""])
sketch6.MapMode = "FlatFace"
sketch6.addGeometry(Part.LineSegment(App.Vector(-17, -16, 0), App.Vector(-17, 16, 0)), False)
sketch6.addGeometry(Part.LineSegment(App.Vector(-17, 16, 0), App.Vector(2, 16, 0)), False)
sketch6.addGeometry(Part.LineSegment(App.Vector(2, 16, 0), App.Vector(2, -16, 0)), False)
sketch6.addGeometry(Part.LineSegment(App.Vector(2, -16, 0), App.Vector(-17, -16, 0)), False)
sketch6.addConstraint(Sketcher.Constraint("Coincident", 0, 2, 1, 1))
sketch6.addConstraint(Sketcher.Constraint("Coincident", 1, 2, 2, 1))
sketch6.addConstraint(Sketcher.Constraint("Coincident", 2, 2, 3, 1))
sketch6.addConstraint(Sketcher.Constraint("Coincident", 3, 2, 0, 1))
sketch6.addConstraint(Sketcher.Constraint("Vertical", 0))
sketch6.addConstraint(Sketcher.Constraint("Horizontal", 1))
sketch6.addConstraint(Sketcher.Constraint("Vertical", 2))
sketch6.addConstraint(Sketcher.Constraint("Horizontal", 3))
sketch6.addConstraint(Sketcher.Constraint("DistanceX", 1, 1, 1, 2, Q("19 mm")))
sketch6.addConstraint(Sketcher.Constraint("DistanceY", -1, 1, 0, 2, Q("16.45 mm")))
sketch6.addConstraint(Sketcher.Constraint("DistanceY", 2, 2, -1, 1, Q("16.45 mm")))
sketch6.addConstraint(Sketcher.Constraint("DistanceX", 0, 2, -1, 1, Q("16.87 mm")))
pad5 = body.newObject("PartDesign::Pad", "Pad004")
pad5.Profile = sketch6
pad5.Type = "TwoLengths"
pad5.Length = 12
pad5.Length2 = 3
pad5.Reversed = True

sketch7 = body.newObject("Sketcher::SketchObject", "Sketch006")
sketch7.AttachmentSupport = (doc.getObject("XY_Plane"), [""])
sketch7.MapMode = "FlatFace"
sketch7.AttachmentOffset = App.Placement(App.Vector(0, 0, 3), App.Rotation())
sketch7.addGeometry(Part.Circle(App.Vector(0.5, 11.5, 0), App.Vector(0, 0, 1), 1.2), False)
sketch7.addGeometry(Part.Circle(App.Vector(0.5, -11.5, 0), App.Vector(0, 0, 1), 1.2), False)
sketch7.addConstraint(Sketcher.Constraint("Equal", 0, 1))
sketch7.addConstraint(Sketcher.Constraint("Symmetric", 0, 3, 1, 3, -1))
sketch7.addConstraint(Sketcher.Constraint("Diameter", 0, Q("2.5 mm")))
sketch7.addConstraint(Sketcher.Constraint("DistanceY", 1, 3, 0, 3, Q("23 mm")))
sketch7.addConstraint(Sketcher.Constraint("DistanceX", -1, 1, 0, 3, Q("0.47 mm")))
doc.recompute()
hole = body.newObject("PartDesign::Hole", "Hole")
hole.Profile = sketch7
hole.ThreadType = "None"
hole.Diameter = 2.5
hole.DepthType = "ThroughAll"
hole.HoleCutType = "Counterbore"
hole.HoleCutDiameter = 6
hole.HoleCutDepth = 22

sketch8 = body.newObject("Sketcher::SketchObject", "Sketch007")
sketch8.AttachmentSupport = (doc.getObject("XY_Plane"), [""])
sketch8.MapMode = "FlatFace"
sketch8.AttachmentOffset = App.Placement(App.Vector(0, 0, -12), App.Rotation())
sketch8.addGeometry(Part.Circle(App.Vector(-11, 0, 0), App.Vector(0, 0, 1), 13), False)
sketch8.addConstraint(Sketcher.Constraint("PointOnObject", 0, 3, -1))
sketch8.addConstraint(Sketcher.Constraint("Diameter", 0, Q("25.5374 mm")))
sketch8.addConstraint(Sketcher.Constraint("DistanceX", 0, 3, -1, 1, Q("11.03 mm")))
pocket2 = body.newObject("PartDesign::Pocket", "Pocket001")
pocket2.Profile = sketch8
pocket2.Length = 3
pocket2.Reversed = True

sketch9 = body.newObject("Sketcher::SketchObject", "Sketch008")
sketch9.AttachmentSupport = (doc.getObject("XY_Plane"), [""])
sketch9.MapMode = "FlatFace"
sketch9.AttachmentOffset = App.Placement(App.Vector(0, 0, -9), App.Rotation())
sketch9.addGeometry(Part.Circle(App.Vector(-11, 0, 0), App.Vector(0, 0, 1), 9), False)
sketch9.addConstraint(Sketcher.Constraint("PointOnObject", 0, 3, -1))
sketch9.addConstraint(Sketcher.Constraint("Diameter", 0, Q("18 mm")))
sketch9.addConstraint(Sketcher.Constraint("DistanceX", 0, 3, -1, 1, Q("11.03 mm")))
pocket3 = body.newObject("PartDesign::Pocket", "Pocket002")
pocket3.Profile = sketch9
pocket3.Type = "UpToFirst"
pocket3.Reversed = True

sketch10 = body.newObject("Sketcher::SketchObject", "Sketch009")
sketch10.AttachmentSupport = (doc.getObject("YZ_Plane"), [""])
sketch10.MapMode = "FlatFace"
sketch10.AttachmentOffset = App.Placement(App.Vector(0, 0, 24.85), App.Rotation())
sketch10.addGeometry(Part.Circle(App.Vector(0, 32.1, 0), App.Vector(0, 0, 1), 1.4), False)
sketch10.addGeometry(Part.Circle(App.Vector(0, 24.6, 0), App.Vector(0, 0, 1), 1.4), False)
sketch10.addGeometry(Part.Circle(App.Vector(0, 17.1, 0), App.Vector(0, 0, 1), 1.4), False)
sketch10.addGeometry(Part.Circle(App.Vector(0, 9.6, 0), App.Vector(0, 0, 1), 1.4), False)
sketch10.addGeometry(Part.Circle(App.Vector(0, 2.1, 0), App.Vector(0, 0, 1), 1.4), False)
sketch10.addConstraint(Sketcher.Constraint("Equal", 0, 1))
sketch10.addConstraint(Sketcher.Constraint("Equal", 1, 2))
sketch10.addConstraint(Sketcher.Constraint("Equal", 2, 3))
sketch10.addConstraint(Sketcher.Constraint("Equal", 3, 4))
sketch10.addConstraint(Sketcher.Constraint("PointOnObject", 0, 3, -2))
sketch10.addConstraint(Sketcher.Constraint("PointOnObject", 1, 3, -2))
sketch10.addConstraint(Sketcher.Constraint("PointOnObject", 2, 3, -2))
sketch10.addConstraint(Sketcher.Constraint("PointOnObject", 3, 3, -2))
sketch10.addConstraint(Sketcher.Constraint("PointOnObject", 4, 3, -2))
sketch10.addConstraint(Sketcher.Constraint("Diameter", 0, Q("2.8 mm")))
sketch10.addConstraint(Sketcher.Constraint("DistanceY", 3, 3, 1, 3, Q("15 mm")))
sketch10.addConstraint(Sketcher.Constraint("DistanceY", 4, 3, 0, 3, Q("30 mm")))
sketch10.addConstraint(Sketcher.Constraint("DistanceY", -1, 1, 0, 3, Q("32.1 mm")))
sketch10.addConstraint(Sketcher.Constraint("DistanceY", -1, 1, 1, 3, Q("24.6 mm")))
sketch10.addConstraint(Sketcher.Constraint("DistanceY", -1, 1, 2, 3, Q("17.053 mm")))
doc.recompute()
hole2 = body.newObject("PartDesign::Hole", "Hole001")
hole2.Profile = sketch10
hole2.ThreadType = "None"
hole2.Diameter = 2.8
hole2.DepthType = "Dimension"
hole2.Depth = 8
hole2.DrillPoint = "Angled"
hole2.DrillPointAngle = 118
hole2.HoleCutType = "Counterbore"
hole2.HoleCutDiameter = 6
hole2.HoleCutDepth = 3
doc.recompute()

chamfer2 = body.newObject("PartDesign::Chamfer", "Chamfer001")
chamfer2.Base = (hole2, edges_at(hole2, [(19.527, 5.471, 33.6), (19.527, -5.496, 33.6)]))
chamfer2.Size = 2
doc.recompute()

fillet = body.newObject("PartDesign::Fillet", "Fillet")
fillet.Base = (chamfer2, edges_at(chamfer2, [(-16.87, -16.45, -6), (-16.87, 16.45, -6)]))
fillet.Radius = 4

sketch11 = body.newObject("Sketcher::SketchObject", "Sketch010")
sketch11.AttachmentSupport = (doc.getObject("XY_Plane"), [""])
sketch11.MapMode = "FlatFace"
sketch11.AttachmentOffset = App.Placement(App.Vector(0, 0, 3), App.Rotation())
sketch11.addGeometry(Part.LineSegment(App.Vector(16.9, -6, 0), App.Vector(14.4, -6, 0)), False)
sketch11.addGeometry(Part.LineSegment(App.Vector(14.4, -6, 0), App.Vector(14.4, -13.9, 0)), False)
sketch11.addGeometry(Part.LineSegment(App.Vector(14.4, -13.9, 0), App.Vector(16.9, -13.9, 0)), False)
sketch11.addGeometry(Part.LineSegment(App.Vector(16.9, -13.9, 0), App.Vector(16.9, -6, 0)), False)
sketch11.addGeometry(Part.LineSegment(App.Vector(14.4, 6.2, 0), App.Vector(16.9, 6.2, 0)), False)
sketch11.addGeometry(Part.LineSegment(App.Vector(16.9, 6.2, 0), App.Vector(16.9, 13.9, 0)), False)
sketch11.addGeometry(Part.LineSegment(App.Vector(16.9, 13.9, 0), App.Vector(14.4, 13.9, 0)), False)
sketch11.addGeometry(Part.LineSegment(App.Vector(14.4, 13.9, 0), App.Vector(14.4, 6.2, 0)), False)
sketch11.addConstraint(Sketcher.Constraint("Coincident", 0, 2, 1, 1))
sketch11.addConstraint(Sketcher.Constraint("Coincident", 1, 2, 2, 1))
sketch11.addConstraint(Sketcher.Constraint("Coincident", 2, 2, 3, 1))
sketch11.addConstraint(Sketcher.Constraint("Coincident", 3, 2, 0, 1))
sketch11.addConstraint(Sketcher.Constraint("Coincident", 4, 2, 5, 1))
sketch11.addConstraint(Sketcher.Constraint("Coincident", 5, 2, 6, 1))
sketch11.addConstraint(Sketcher.Constraint("Coincident", 6, 2, 7, 1))
sketch11.addConstraint(Sketcher.Constraint("Coincident", 7, 2, 4, 1))
sketch11.addConstraint(Sketcher.Constraint("Horizontal", 0))
sketch11.addConstraint(Sketcher.Constraint("Vertical", 1))
sketch11.addConstraint(Sketcher.Constraint("Horizontal", 2))
sketch11.addConstraint(Sketcher.Constraint("Vertical", 3))
sketch11.addConstraint(Sketcher.Constraint("Horizontal", 4))
sketch11.addConstraint(Sketcher.Constraint("Vertical", 5))
sketch11.addConstraint(Sketcher.Constraint("Horizontal", 6))
sketch11.addConstraint(Sketcher.Constraint("Vertical", 7))
sketch11.addConstraint(Sketcher.Constraint("Symmetric", 2, 2, 5, 2, -1))
sketch11.addConstraint(Sketcher.Constraint("Vertical", 1, 2, 6, 2))
sketch11.addConstraint(Sketcher.Constraint("DistanceX", 0, 2, 0, 1, Q("2.5 mm")))
sketch11.addConstraint(Sketcher.Constraint("DistanceY", 5, 1, 5, 2, Q("7.72 mm")))
sketch11.addConstraint(Sketcher.Constraint("DistanceY", 1, 2, 1, 1, Q("7.92 mm")))
sketch11.addConstraint(Sketcher.Constraint("DistanceY", 3, 2, 4, 2, Q("12.1 mm")))
sketch11.addConstraint(Sketcher.Constraint("DistanceX", -1, 1, 0, 2, Q("14.37 mm")))
pad6 = body.newObject("PartDesign::Pad", "Pad005")
pad6.Profile = sketch11
pad6.Length = 3
pad6.Reversed = True

doc.recompute()
